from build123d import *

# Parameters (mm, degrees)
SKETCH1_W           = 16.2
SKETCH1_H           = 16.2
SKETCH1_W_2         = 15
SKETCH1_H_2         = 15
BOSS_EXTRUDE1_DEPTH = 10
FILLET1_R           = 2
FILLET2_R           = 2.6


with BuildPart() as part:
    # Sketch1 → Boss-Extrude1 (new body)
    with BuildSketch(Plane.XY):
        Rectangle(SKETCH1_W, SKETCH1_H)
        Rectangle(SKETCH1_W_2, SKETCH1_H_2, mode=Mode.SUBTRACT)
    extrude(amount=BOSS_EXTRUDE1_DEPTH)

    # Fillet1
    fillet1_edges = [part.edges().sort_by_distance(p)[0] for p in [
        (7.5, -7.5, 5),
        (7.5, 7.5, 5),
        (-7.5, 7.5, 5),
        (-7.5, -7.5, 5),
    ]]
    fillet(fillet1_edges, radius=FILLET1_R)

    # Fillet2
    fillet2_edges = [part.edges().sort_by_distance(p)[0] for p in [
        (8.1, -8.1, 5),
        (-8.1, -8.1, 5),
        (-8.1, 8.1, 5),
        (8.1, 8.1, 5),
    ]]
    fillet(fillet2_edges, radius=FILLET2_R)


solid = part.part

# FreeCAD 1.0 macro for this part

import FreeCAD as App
import Part
import Sketcher
from FreeCAD import Vector


def edges_at(feature, points):
    """Names of the edges that pass closest to the given points."""
    edges = feature.Shape.Edges
    near = lambda p: min(range(len(edges)), key=lambda i: edges[i].distToShape(Part.Vertex(*p))[0])
    return sorted({f"Edge{near(p) + 1}" for p in points})


def add_polygon(sketch, points):
    """Adds a closed chain of lines whose ends are joined by coincident constraints."""
    first, n = sketch.GeometryCount, len(points)
    for a, b in zip(points, points[1:] + points[:1]):
        sketch.addGeometry(Part.LineSegment(App.Vector(*a, 0), App.Vector(*b, 0)), False)
    for i in range(n):
        sketch.addConstraint(Sketcher.Constraint("Coincident", first + i, 2, first + (i + 1) % n, 1))

doc = App.newDocument("Part")
body = doc.addObject("PartDesign::Body", "Body")

sketch1 = body.newObject("Sketcher::SketchObject", "Sketch")
sketch1.AttachmentSupport = (doc.getObject("XY_Plane"), [""])
sketch1.MapMode = "FlatFace"
add_polygon(sketch1, [(-8.1, 8.1), (-8.1, -8.1), (8.1, -8.1), (8.1, 8.1)])
add_polygon(sketch1, [(7.5, -7.5), (-7.5, -7.5), (-7.5, 7.5), (7.5, 7.5)])
sketch1.addConstraint(Sketcher.Constraint("Vertical", 0))
sketch1.addConstraint(Sketcher.Constraint("Horizontal", 1))
sketch1.addConstraint(Sketcher.Constraint("Vertical", 2))
sketch1.addConstraint(Sketcher.Constraint("Horizontal", 3))
sketch1.addConstraint(Sketcher.Constraint("Horizontal", 4))
sketch1.addConstraint(Sketcher.Constraint("Vertical", 5))
sketch1.addConstraint(Sketcher.Constraint("Horizontal", 6))
sketch1.addConstraint(Sketcher.Constraint("Vertical", 7))
sketch1.addConstraint(Sketcher.Constraint("Symmetric", 0, 2, 2, 2, -1, 1))
sketch1.addConstraint(Sketcher.Constraint("Symmetric", 4, 2, 6, 2, -1, 1))
sketch1.addConstraint(Sketcher.Constraint("Equal", 3, 0))
sketch1.addConstraint(Sketcher.Constraint("Equal", 6, 5))
sketch1.addConstraint(Sketcher.Constraint("DistanceX", 4, 2, 4, 1, 15.0))
sketch1.addConstraint(Sketcher.Constraint("DistanceX", 1, 1, 1, 2, 16.2))
pad1 = body.newObject("PartDesign::Pad", "Pad")
pad1.Profile = sketch1
pad1.Length = 10
doc.recompute()

fillet = body.newObject("PartDesign::Fillet", "Fillet")
fillet.Base = (pad1, edges_at(pad1, [
    (7.5, -7.5, 5),
    (7.5, 7.5, 5),
    (-7.5, 7.5, 5),
    (-7.5, -7.5, 5),
]))
fillet.Radius = 2
doc.recompute()

fillet2 = body.newObject("PartDesign::Fillet", "Fillet001")
fillet2.Base = (fillet, edges_at(fillet, [
    (8.1, -8.1, 5),
    (-8.1, -8.1, 5),
    (-8.1, 8.1, 5),
    (8.1, 8.1, 5),
]))
fillet2.Radius = 2.6

doc.recompute()
